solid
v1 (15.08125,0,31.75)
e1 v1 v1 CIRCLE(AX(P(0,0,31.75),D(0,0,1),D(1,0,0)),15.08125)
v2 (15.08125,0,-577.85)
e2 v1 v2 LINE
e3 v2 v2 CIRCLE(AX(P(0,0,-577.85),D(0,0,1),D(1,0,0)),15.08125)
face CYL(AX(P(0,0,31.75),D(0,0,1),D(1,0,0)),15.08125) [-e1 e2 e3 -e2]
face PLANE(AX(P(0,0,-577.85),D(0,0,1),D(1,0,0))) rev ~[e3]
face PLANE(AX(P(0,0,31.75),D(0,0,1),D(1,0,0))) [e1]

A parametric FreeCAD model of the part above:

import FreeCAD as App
import Part
import Sketcher
from FreeCAD import Vector
Q = App.Units.Quantity

doc = App.newDocument("Part")
body = doc.addObject("PartDesign::Body", "Body")

# Sketch on XY plane
sketch1 = body.newObject("Sketcher::SketchObject", "Sketch")
sketch1.AttachmentSupport = (doc.getObject("XY_Plane"), [""])
sketch1.MapMode = "FlatFace"
sketch1.AttachmentOffset = App.Placement(Vector(0, 0, 1.25 * 25.4), App.Rotation())
sketch1.addGeometry(Part.Circle(Vector(0, 0, 0), Vector(0, 0, 1), 15), False)
sketch1.addConstraint([
    Sketcher.Constraint("Coincident", 0, 3, -1, 1),
    Sketcher.Constraint("Diameter", 0, Q("1.1875 in")),
])
pad1 = body.newObject("PartDesign::Pad", "Pad")
pad1.Profile = sketch1
pad1.Length = Q("24 in")
pad1.Reversed = True

doc.recompute()
